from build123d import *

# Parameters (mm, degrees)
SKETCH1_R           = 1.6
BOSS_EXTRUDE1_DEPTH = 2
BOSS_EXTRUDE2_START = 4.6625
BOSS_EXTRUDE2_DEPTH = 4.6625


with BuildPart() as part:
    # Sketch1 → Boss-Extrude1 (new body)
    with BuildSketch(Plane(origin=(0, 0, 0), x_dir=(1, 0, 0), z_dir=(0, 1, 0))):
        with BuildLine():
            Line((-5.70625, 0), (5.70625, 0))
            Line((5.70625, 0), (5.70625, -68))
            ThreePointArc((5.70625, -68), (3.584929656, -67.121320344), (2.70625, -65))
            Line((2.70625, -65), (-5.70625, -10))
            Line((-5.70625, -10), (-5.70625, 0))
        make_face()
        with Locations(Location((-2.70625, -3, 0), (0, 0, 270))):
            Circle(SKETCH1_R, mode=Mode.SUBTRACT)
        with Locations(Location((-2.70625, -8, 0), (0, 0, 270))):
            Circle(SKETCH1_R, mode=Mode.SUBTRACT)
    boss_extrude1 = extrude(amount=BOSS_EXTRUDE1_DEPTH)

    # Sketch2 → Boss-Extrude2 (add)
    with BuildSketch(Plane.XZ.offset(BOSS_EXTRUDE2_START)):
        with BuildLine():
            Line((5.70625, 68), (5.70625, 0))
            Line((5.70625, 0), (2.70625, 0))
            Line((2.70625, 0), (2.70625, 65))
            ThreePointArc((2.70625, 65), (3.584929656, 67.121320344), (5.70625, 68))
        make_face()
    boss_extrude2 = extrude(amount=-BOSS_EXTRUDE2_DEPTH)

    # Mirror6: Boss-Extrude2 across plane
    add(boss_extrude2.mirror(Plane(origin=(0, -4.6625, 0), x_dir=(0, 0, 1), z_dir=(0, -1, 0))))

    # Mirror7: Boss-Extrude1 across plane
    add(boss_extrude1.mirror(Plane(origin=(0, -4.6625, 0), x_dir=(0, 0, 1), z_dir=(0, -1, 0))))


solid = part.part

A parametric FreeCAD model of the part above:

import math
import FreeCAD as App
import Part
import Sketcher
Q = App.Units.Quantity

doc = App.newDocument("Part")
params = doc.addObject("Spreadsheet::Sheet", "Params")
for row, (alias, value) in enumerate([
    ("sketch1_radius", "3 mm"),
    ("sketch1_diameter", "3.2 mm"),
    ("sketch1_height", "10 mm"),
    ("sketch1_height2", "68 mm"),
    ("pad1_length", "2 mm"),
    ("sketch2_radius", "3 mm"),
    ("sketch2_height", "68 mm"),
    ("pad2_length", "4.6625 mm"),
], start=1):
    params.set(f"A{row}", alias)
    params.set(f"B{row}", "=" + value)
    params.setAlias(f"B{row}", alias)

body = doc.addObject("PartDesign::Body", "Body")

# Sketch on XZ plane
sketch1 = body.newObject("Sketcher::SketchObject", "Sketch")
sketch1.AttachmentSupport = (doc.getObject("XZ_Plane"), [""])
sketch1.MapMode = "FlatFace"
sketch1.addGeometry([
    Part.LineSegment(App.Vector(5.7, 0, 0), App.Vector(-5.7, 0, 0)),  # 0
    Part.LineSegment(App.Vector(-5.7, 0, 0), App.Vector(-5.7, 10, 0)),  # 1
    Part.LineSegment(App.Vector(-5.7, 10, 0), App.Vector(2.7, 65, 0)),  # 2
    Part.ArcOfCircle(Part.Circle(App.Vector(5.7, 65, 0), App.Vector(0, 0, 1), 3), math.radians(90), math.radians(180)),  # 3
    Part.LineSegment(App.Vector(5.7, 68, 0), App.Vector(5.7, 0, 0)),  # 4
    Part.Circle(App.Vector(-2.7, 8, 0), App.Vector(0, 0, 1), 1.6),  # 5
    Part.Circle(App.Vector(-2.7, 3, 0), App.Vector(0, 0, 1), 1.6),  # 6
], False)
sketch1.addConstraint([
    Sketcher.Constraint("Coincident", 0, 2, 1, 1),
    Sketcher.Constraint("Coincident", 1, 2, 2, 1),
    Sketcher.Constraint("Coincident", 2, 2, 3, 2),
    Sketcher.Constraint("Coincident", 3, 1, 4, 1),
    Sketcher.Constraint("Coincident", 4, 2, 0, 1),
    Sketcher.Constraint("Horizontal", 0),
    Sketcher.Constraint("Vertical", 1),
    Sketcher.Constraint("Vertical", 4),
    Sketcher.Constraint("Equal", 5, 6),
    Sketcher.Constraint("Symmetric", 0, 2, 4, 2, -1, 1),
    Sketcher.Constraint("Horizontal", 3, 3, 2, 2),
    Sketcher.Constraint("Vertical", 5, 3, 6, 3),
    Sketcher.Constraint("Radius", 3, Q("3 mm")),
    Sketcher.Constraint("Diameter", 5, Q("3.2 mm")),
    Sketcher.Constraint("DistanceY", 1, 1, 1, 2, Q("10 mm")),
    Sketcher.Constraint("DistanceY", 4, 2, 4, 1, Q("68 mm")),
    Sketcher.Constraint("DistanceY", -1, 1, 5, 3, Q("8 mm")),
    Sketcher.Constraint("DistanceY", -1, 1, 6, 3, Q("3 mm")),
    Sketcher.Constraint("DistanceX", 0, 2, 6, 3, Q("3 mm")),
    Sketcher.Constraint("DistanceX", 2, 2, 3, 1, Q("3 mm")),
    Sketcher.Constraint("DistanceX", 0, 2, 0, 1, Q("11.4125 mm")),
])
sketch1.setExpression("Constraints[12]", "Params.sketch1_radius")
sketch1.setExpression("Constraints[13]", "Params.sketch1_diameter")
sketch1.setExpression("Constraints[14]", "Params.sketch1_height")
sketch1.setExpression("Constraints[15]", "Params.sketch1_height2")
pad1 = body.newObject("PartDesign::Pad", "Pad")
pad1.Profile = sketch1
pad1.setExpression("Length", "Params.pad1_length")
pad1.Reversed = True

# Sketch on XZ plane
sketch2 = body.newObject("Sketcher::SketchObject", "Sketch001")
sketch2.AttachmentSupport = (doc.getObject("XZ_Plane"), [""])
sketch2.MapMode = "FlatFace"
sketch2.AttachmentOffset = App.Placement(App.Vector(0, 0, 4.6625), App.Rotation())
sketch2.addGeometry([
    Part.LineSegment(App.Vector(5.7, 0, 0), App.Vector(5.7, 68, 0)),
    Part.ArcOfCircle(Part.Circle(App.Vector(5.7, 65, 0), App.Vector(0, 0, 1), 3), math.radians(90), math.radians(180)),
    Part.LineSegment(App.Vector(2.7, 65, 0), App.Vector(2.7, 0, 0)),
    Part.LineSegment(App.Vector(2.7, 0, 0), App.Vector(5.7, 0, 0)),
], False)
sketch2.addConstraint([
    Sketcher.Constraint("Coincident", 0, 2, 1, 1),
    Sketcher.Constraint("Tangent", 1, 2, 2, 1),
    Sketcher.Constraint("Coincident", 2, 2, 3, 1),
    Sketcher.Constraint("Coincident", 3, 2, 0, 1),
    Sketcher.Constraint("Vertical", 0),
    Sketcher.Constraint("Vertical", 2),
    Sketcher.Constraint("Horizontal", 3),
    Sketcher.Constraint("PointOnObject", 2, 2, -1),
    Sketcher.Constraint("Vertical", 1, 3, 0, 2),
    Sketcher.Constraint("Radius", 1, Q("3 mm")),
    Sketcher.Constraint("DistanceY", 0, 1, 0, 2, Q("68 mm")),
    Sketcher.Constraint("DistanceX", -1, 1, 1, 3, Q("5.70625 mm")),
])
sketch2.setExpression("Constraints[9]", "Params.sketch2_radius")
sketch2.setExpression("Constraints[10]", "Params.sketch2_height")
pad2 = body.newObject("PartDesign::Pad", "Pad001")
pad2.Profile = sketch2
pad2.setExpression("Length", "Params.pad2_length")
pad2.Reversed = True
doc.recompute()

datumplane = body.newObject("PartDesign::Plane", "DatumPlane")
datumplane.AttachmentSupport = (doc.getObject("XZ_Plane"), [""])
datumplane.MapMode = "FlatFace"
datumplane.AttachmentOffset = App.Placement(App.Vector(0, 0, 4.6625), App.Rotation())
mirrored = body.newObject("PartDesign::Mirrored", "Mirrored")
mirrored.Originals = [pad2]
mirrored.MirrorPlane = (datumplane, [""])
body.Tip = mirrored
doc.recompute()

datumplane2 = body.newObject("PartDesign::Plane", "DatumPlane001")
datumplane2.AttachmentSupport = (doc.getObject("XZ_Plane"), [""])
datumplane2.MapMode = "FlatFace"
datumplane2.AttachmentOffset = App.Placement(App.Vector(0, 0, 4.6625), App.Rotation())
mirrored2 = body.newObject("PartDesign::Mirrored", "Mirrored001")
mirrored2.Originals = [pad1]
mirrored2.MirrorPlane = (datumplane2, [""])
body.Tip = mirrored2

doc.recompute()
